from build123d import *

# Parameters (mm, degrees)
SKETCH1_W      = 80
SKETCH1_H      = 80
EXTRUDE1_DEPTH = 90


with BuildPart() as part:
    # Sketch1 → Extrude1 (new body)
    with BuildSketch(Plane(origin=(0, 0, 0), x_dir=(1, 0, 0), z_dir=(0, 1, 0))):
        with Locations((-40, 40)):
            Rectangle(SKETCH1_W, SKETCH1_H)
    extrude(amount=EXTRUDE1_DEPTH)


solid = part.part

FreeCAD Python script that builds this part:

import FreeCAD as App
import Part
import Sketcher


def add_polygon(sketch, points):
    """Adds a closed chain of lines whose ends are joined by coincident constraints."""
    first, n = sketch.GeometryCount, len(points)
    for a, b in zip(points, points[1:] + points[:1]):
        sketch.addGeometry(Part.LineSegment(App.Vector(*a, 0), App.Vector(*b, 0)), False)
    for i in range(n):
        sketch.addConstraint(Sketcher.Constraint("Coincident", first + i, 2, first + (i + 1) % n, 1))

doc = App.newDocument("Part")
body = doc.addObject("PartDesign::Body", "Body")

sketch1 = body.newObject("Sketcher::SketchObject", "Sketch")
sketch1.AttachmentSupport = (doc.getObject("XZ_Plane"), [""])
sketch1.MapMode = "FlatFace"
add_polygon(sketch1, [(-80, -80), (-80, 0), (0, 0), (0, -80)])
sketch1.addConstraint([
    Sketcher.Constraint("Vertical", 0),
    Sketcher.Constraint("Horizontal", 1),
    Sketcher.Constraint("Vertical", 2),
    Sketcher.Constraint("Horizontal", 3),
    Sketcher.Constraint("Coincident", 1, 2, -1, 1),
    Sketcher.Constraint("Equal", 3, 0),
    Sketcher.Constraint("DistanceX", 1, 1, 1, 2, 80.0),
])
pad1 = body.newObject("PartDesign::Pad", "Pad")
pad1.Profile = sketch1
pad1.Length = 90
pad1.Reversed = True

doc.recompute()
